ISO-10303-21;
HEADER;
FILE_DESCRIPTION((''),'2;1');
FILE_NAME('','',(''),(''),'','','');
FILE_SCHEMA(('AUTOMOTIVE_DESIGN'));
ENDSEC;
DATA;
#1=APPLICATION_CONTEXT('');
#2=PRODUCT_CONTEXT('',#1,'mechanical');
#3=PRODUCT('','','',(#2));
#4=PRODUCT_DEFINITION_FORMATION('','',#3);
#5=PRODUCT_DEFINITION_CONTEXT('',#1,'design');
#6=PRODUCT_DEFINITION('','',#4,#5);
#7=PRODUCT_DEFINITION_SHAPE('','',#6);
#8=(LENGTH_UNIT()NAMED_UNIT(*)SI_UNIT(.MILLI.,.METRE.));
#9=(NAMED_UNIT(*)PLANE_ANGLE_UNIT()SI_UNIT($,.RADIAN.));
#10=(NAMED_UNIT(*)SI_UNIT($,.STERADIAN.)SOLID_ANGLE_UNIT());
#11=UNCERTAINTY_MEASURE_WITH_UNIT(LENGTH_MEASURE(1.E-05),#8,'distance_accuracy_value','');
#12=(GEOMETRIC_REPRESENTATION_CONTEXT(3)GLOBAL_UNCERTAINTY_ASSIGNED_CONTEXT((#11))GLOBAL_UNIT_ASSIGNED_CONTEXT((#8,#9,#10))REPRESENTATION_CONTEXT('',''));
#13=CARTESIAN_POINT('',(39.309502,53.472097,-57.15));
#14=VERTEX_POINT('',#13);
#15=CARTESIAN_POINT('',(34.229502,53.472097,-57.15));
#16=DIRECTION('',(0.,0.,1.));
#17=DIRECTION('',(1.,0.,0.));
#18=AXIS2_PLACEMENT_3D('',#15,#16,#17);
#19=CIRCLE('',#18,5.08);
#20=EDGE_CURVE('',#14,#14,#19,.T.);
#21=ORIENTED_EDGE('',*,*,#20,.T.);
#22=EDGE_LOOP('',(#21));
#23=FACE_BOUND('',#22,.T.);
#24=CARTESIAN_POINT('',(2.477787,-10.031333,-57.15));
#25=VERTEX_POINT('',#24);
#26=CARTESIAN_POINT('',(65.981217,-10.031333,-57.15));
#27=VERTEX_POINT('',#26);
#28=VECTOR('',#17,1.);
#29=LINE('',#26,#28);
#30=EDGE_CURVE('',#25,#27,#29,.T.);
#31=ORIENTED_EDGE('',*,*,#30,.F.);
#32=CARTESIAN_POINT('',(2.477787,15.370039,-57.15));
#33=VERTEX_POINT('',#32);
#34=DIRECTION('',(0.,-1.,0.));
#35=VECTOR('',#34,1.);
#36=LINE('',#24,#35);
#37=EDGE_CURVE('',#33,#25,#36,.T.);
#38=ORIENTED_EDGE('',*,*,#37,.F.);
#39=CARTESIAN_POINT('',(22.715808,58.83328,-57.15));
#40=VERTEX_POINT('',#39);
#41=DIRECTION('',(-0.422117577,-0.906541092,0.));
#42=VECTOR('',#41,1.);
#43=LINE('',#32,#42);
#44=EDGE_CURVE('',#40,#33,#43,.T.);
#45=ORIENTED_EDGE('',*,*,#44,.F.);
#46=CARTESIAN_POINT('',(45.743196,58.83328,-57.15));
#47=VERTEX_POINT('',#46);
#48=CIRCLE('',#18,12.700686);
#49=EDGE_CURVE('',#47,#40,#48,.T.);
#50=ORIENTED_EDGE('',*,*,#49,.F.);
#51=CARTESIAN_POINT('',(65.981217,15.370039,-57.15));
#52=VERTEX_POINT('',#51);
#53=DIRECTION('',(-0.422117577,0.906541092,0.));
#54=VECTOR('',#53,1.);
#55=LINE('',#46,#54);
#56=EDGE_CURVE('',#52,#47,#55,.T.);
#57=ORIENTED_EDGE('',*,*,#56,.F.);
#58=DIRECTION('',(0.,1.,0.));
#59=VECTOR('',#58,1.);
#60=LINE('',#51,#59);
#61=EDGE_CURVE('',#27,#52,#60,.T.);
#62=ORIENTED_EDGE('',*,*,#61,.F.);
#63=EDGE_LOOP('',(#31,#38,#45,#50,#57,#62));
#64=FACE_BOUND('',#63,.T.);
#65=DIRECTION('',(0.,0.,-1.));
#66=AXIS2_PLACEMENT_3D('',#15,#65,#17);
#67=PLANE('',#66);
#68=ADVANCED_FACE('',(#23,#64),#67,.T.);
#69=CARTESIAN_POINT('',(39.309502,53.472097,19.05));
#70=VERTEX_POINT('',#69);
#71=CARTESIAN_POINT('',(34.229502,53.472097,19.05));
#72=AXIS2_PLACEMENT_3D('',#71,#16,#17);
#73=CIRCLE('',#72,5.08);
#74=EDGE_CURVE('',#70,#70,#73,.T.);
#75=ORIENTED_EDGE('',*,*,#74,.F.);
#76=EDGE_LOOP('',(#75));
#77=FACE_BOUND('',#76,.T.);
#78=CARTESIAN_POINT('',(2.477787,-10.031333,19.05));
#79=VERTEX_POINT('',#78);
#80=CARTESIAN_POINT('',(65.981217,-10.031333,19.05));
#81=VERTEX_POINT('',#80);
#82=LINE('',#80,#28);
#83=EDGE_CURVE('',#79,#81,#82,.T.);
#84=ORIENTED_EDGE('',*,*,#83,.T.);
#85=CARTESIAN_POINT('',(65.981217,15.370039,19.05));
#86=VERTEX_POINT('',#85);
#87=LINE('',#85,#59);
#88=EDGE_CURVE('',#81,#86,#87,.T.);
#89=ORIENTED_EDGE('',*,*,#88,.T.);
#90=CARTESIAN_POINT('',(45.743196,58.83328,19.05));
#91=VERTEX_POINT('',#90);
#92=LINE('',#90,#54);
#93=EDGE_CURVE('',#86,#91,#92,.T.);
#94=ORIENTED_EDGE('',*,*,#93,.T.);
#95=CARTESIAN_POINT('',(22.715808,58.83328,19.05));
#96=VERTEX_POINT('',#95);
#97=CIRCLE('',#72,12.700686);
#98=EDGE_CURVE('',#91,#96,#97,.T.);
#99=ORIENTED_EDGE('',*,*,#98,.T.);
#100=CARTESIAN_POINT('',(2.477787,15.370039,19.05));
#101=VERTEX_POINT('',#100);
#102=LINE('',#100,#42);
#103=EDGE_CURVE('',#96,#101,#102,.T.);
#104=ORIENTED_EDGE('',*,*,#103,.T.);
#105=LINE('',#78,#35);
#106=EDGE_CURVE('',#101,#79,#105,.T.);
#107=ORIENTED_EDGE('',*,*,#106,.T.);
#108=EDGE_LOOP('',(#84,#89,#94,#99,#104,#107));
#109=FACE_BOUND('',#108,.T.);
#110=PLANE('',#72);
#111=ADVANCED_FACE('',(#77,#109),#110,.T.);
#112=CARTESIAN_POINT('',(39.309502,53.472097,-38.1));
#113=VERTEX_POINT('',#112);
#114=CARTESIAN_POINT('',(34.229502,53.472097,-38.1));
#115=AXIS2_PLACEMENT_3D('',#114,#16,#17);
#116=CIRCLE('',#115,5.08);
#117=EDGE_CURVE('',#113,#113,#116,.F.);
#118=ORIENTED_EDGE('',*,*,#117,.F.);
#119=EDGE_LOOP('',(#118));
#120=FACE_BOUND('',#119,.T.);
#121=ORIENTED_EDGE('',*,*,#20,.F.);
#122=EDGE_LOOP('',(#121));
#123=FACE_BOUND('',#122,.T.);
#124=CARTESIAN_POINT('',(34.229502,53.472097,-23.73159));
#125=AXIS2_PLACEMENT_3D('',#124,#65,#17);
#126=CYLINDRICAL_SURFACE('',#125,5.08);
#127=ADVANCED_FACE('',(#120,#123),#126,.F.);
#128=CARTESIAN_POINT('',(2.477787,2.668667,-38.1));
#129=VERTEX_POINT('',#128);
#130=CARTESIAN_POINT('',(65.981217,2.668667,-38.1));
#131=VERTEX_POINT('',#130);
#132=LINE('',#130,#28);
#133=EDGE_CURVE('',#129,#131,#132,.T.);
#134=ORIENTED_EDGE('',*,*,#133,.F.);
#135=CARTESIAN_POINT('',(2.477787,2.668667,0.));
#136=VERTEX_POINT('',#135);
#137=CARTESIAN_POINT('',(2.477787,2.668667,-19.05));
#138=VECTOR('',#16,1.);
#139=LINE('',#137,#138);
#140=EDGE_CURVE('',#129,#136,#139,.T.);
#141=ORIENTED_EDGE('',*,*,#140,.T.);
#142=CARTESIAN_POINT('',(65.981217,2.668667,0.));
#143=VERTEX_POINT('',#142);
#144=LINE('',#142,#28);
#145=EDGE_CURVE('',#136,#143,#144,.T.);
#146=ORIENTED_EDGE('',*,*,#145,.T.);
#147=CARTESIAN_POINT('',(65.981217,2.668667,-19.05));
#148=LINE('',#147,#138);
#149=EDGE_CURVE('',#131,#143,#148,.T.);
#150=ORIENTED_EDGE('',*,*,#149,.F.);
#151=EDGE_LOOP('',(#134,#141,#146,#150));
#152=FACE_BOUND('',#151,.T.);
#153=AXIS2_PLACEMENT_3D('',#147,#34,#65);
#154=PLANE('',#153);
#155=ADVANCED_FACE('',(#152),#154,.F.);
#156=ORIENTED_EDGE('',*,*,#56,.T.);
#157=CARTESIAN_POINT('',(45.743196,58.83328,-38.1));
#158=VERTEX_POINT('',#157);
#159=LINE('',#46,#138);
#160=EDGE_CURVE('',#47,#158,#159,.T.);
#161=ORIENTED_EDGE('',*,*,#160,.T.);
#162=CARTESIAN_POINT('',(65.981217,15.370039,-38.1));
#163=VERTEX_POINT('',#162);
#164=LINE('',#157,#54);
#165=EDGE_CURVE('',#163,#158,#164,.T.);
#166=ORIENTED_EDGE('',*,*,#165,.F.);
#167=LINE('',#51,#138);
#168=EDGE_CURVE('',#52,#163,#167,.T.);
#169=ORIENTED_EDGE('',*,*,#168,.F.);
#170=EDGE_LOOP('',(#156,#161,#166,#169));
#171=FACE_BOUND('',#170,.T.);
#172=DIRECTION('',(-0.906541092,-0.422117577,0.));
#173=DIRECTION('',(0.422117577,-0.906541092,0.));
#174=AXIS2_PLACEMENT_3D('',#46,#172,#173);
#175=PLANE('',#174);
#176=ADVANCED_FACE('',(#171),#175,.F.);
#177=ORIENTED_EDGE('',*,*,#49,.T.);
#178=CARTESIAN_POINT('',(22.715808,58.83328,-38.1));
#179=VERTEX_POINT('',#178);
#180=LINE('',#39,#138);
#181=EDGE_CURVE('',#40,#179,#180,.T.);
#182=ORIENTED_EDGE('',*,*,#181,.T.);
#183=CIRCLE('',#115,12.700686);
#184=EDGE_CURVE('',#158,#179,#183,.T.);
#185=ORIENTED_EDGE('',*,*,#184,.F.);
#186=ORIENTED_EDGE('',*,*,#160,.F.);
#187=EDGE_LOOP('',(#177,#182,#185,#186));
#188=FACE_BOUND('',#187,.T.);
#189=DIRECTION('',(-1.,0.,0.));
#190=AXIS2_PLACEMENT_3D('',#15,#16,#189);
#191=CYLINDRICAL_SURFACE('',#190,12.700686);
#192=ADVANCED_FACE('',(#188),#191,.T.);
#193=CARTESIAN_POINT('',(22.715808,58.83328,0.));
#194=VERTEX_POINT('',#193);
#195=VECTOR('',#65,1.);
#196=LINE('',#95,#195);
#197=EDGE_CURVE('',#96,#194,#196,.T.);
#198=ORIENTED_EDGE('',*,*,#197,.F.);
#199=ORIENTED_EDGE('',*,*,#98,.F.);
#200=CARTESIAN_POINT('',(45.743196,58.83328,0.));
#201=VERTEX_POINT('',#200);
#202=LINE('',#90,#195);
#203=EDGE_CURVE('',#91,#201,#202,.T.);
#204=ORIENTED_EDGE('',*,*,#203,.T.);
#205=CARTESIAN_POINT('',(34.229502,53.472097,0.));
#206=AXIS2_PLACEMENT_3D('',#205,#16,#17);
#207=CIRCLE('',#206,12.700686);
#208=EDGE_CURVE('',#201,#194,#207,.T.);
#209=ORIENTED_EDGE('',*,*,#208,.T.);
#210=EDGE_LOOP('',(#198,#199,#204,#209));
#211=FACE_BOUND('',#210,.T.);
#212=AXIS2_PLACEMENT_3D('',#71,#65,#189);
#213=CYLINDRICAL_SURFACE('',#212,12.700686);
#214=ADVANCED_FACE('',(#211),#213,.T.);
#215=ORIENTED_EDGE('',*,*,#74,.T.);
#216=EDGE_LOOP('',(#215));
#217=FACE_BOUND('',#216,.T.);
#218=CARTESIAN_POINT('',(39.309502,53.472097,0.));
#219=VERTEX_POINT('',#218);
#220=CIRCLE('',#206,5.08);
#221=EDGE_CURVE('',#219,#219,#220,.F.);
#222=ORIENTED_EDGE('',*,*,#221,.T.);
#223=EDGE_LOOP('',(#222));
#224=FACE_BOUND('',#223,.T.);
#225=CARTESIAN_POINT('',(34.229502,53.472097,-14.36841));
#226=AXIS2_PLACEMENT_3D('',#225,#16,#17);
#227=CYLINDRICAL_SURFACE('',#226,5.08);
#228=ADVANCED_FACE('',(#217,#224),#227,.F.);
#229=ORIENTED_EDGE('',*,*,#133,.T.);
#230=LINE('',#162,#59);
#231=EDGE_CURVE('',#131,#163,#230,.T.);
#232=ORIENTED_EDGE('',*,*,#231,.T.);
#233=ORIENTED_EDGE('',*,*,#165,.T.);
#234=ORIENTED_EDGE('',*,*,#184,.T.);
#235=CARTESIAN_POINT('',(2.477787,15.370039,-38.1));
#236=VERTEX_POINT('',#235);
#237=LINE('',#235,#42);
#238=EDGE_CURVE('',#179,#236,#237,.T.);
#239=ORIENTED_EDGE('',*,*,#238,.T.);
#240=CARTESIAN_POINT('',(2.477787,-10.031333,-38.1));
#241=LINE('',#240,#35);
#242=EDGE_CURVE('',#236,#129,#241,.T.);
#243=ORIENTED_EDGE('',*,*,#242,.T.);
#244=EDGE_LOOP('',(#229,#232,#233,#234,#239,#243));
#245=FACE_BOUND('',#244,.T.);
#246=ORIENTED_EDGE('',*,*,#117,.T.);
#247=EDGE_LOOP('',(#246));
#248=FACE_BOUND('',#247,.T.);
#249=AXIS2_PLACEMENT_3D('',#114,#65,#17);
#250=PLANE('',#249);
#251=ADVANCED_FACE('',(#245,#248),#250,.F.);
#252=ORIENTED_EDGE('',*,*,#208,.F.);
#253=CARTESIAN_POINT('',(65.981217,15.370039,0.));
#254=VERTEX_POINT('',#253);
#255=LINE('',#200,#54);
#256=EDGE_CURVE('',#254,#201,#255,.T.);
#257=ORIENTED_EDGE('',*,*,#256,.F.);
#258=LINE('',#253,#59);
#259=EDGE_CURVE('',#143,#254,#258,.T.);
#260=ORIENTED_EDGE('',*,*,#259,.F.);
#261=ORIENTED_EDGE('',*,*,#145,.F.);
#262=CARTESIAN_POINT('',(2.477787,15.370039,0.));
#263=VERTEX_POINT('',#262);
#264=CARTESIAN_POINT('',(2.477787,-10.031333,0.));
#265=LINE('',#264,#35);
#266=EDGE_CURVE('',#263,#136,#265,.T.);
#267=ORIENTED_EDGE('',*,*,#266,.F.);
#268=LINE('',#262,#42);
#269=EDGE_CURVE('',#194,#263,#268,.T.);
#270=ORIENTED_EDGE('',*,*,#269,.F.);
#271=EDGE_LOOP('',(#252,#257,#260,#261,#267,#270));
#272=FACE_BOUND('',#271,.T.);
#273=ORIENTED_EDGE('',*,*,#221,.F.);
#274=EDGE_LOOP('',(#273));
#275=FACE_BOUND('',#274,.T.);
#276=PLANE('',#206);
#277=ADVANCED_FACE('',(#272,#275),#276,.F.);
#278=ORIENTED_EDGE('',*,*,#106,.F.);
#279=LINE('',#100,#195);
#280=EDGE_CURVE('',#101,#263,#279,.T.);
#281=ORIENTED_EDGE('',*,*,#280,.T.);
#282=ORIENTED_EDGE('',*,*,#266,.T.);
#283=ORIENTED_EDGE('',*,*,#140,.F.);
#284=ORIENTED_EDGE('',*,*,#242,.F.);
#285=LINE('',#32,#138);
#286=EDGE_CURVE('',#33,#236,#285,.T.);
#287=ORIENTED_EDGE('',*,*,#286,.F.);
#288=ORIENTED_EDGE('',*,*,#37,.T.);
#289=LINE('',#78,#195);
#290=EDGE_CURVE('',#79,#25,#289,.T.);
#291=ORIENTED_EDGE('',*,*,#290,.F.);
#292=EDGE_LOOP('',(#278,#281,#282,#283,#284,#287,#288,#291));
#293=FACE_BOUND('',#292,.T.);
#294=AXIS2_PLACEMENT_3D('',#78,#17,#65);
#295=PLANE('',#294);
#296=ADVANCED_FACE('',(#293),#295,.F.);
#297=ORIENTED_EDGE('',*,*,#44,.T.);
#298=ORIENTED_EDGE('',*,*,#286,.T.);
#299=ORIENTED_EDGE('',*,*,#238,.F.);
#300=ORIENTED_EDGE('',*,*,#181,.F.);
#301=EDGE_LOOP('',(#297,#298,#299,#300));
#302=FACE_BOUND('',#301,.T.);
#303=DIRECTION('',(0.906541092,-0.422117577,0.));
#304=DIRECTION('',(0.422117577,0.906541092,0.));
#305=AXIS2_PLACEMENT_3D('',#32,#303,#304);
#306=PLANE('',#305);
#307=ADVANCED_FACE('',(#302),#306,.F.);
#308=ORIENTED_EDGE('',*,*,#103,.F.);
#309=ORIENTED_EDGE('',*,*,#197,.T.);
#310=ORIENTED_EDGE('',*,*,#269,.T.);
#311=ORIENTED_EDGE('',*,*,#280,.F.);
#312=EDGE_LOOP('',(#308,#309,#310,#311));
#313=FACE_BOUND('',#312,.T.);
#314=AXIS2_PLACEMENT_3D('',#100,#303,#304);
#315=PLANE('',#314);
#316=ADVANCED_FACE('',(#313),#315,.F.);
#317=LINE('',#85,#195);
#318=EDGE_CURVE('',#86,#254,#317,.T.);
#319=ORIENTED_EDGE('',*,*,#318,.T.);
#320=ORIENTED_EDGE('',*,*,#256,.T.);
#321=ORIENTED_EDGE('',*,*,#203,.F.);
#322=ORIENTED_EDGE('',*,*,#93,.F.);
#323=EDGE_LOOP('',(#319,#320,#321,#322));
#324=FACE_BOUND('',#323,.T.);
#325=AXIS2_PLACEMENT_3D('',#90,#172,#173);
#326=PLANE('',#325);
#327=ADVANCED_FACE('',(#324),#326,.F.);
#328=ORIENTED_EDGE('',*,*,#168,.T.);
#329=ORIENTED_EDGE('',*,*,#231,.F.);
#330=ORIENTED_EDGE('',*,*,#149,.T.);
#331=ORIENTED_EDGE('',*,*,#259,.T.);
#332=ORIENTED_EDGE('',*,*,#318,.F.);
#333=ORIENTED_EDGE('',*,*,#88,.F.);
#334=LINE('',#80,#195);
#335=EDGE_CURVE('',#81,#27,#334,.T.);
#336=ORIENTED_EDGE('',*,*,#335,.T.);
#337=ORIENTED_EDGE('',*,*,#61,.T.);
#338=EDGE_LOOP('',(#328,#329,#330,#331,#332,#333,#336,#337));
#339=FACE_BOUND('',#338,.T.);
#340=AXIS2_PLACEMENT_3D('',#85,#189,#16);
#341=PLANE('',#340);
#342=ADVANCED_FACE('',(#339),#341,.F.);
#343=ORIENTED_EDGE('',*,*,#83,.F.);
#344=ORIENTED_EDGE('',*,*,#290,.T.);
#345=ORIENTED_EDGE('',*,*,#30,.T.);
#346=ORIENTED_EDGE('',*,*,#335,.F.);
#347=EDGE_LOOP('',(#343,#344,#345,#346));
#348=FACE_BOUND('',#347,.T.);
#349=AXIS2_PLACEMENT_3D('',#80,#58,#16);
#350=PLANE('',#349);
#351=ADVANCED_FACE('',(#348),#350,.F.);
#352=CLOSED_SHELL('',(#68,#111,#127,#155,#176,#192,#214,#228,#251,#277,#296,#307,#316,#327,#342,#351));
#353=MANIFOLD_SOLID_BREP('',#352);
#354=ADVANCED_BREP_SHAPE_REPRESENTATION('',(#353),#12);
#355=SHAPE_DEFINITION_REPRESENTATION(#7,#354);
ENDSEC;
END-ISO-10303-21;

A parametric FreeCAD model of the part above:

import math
import FreeCAD as App
import Part
import Sketcher
from FreeCAD import Vector
Q = App.Units.Quantity

doc = App.newDocument("Part")
body = doc.addObject("PartDesign::Body", "Body")

# Sketch on XY plane
sketch1 = doc.addObject("Sketcher::SketchObject", "Sketch")
body.addObject(sketch1)
sketch1.AttachmentSupport = (doc.XY_Plane, [""])
sketch1.MapMode = "FlatFace"
sketch1.addGeometry([
    Part.LineSegment(Vector(2, 15, 0), Vector(2, -10, 0)),  # 0
    Part.LineSegment(Vector(2, -10, 0), Vector(66, -10, 0)),  # 1
    Part.LineSegment(Vector(66, -10, 0), Vector(66, 15, 0)),  # 2
    Part.LineSegment(Vector(66, 15, 0), Vector(46, 59, 0)),  # 3
    Part.ArcOfCircle(Part.Circle(Vector(34, 53, 0), Vector(0, 0, 1), 13), math.radians(25), math.radians(155)),  # 4
    Part.LineSegment(Vector(23, 59, 0), Vector(2, 15, 0)),  # 5
], False)
sketch1.addConstraint([
    Sketcher.Constraint("Coincident", 0, 2, 1, 1),
    Sketcher.Constraint("Coincident", 1, 2, 2, 1),
    Sketcher.Constraint("Coincident", 2, 2, 3, 1),
    Sketcher.Constraint("Tangent", 3, 2, 4, 1),
    Sketcher.Constraint("Tangent", 4, 2, 5, 1),
    Sketcher.Constraint("Coincident", 5, 2, 0, 1),
    Sketcher.Constraint("Vertical", 0),
    Sketcher.Constraint("Horizontal", 1),
    Sketcher.Constraint("Vertical", 2),
    Sketcher.Constraint("Horizontal", 3, 2, 4, 2),
    Sketcher.Constraint("Horizontal", 2, 2, 5, 2),
    Sketcher.Constraint("Radius", 4, 12.700686),
    Sketcher.Constraint("DistanceX", 1, 1, 1, 2, 63.50343),
    Sketcher.Constraint("DistanceY", 0, 2, 0, 1, 25.401372),
    Sketcher.Constraint("Distance", 3, 47.944038),
    Sketcher.Constraint("DistanceY", -1, 1, 2, 2, 15.370039),
    Sketcher.Constraint("DistanceX", -1, 1, 4, 2, 22.715808),
])
pad1 = doc.addObject("PartDesign::Pad", "Pad")
body.addObject(pad1)
pad1.Profile = sketch1
pad1.Length = Q("0.75 in")

# Sketch on XY plane
sketch2 = doc.addObject("Sketcher::SketchObject", "Sketch001")
body.addObject(sketch2)
sketch2.AttachmentSupport = (doc.XY_Plane, [""])
sketch2.MapMode = "FlatFace"
sketch2.AttachmentOffset = App.Placement(Vector(0, 0, 0.75 * 25.4), App.Rotation())
sketch2.addGeometry(Part.Circle(Vector(34, 53, 0), Vector(0, 0, 1), 5), False)
sketch2.addConstraint([
    Sketcher.Constraint("Diameter", 0, Q("0.4 in")),
    Sketcher.Constraint("DistanceX", -1, 1, 0, 3, 34.229502),
    Sketcher.Constraint("DistanceY", -1, 1, 0, 3, 53.472097),
])
pocket1 = doc.addObject("PartDesign::Pocket", "Pocket")
body.addObject(pocket1)
pocket1.Profile = sketch2
pocket1.Length = Q("0.75 in")

# Sketch on XY plane
sketch3 = doc.addObject("Sketcher::SketchObject", "Sketch002")
body.addObject(sketch3)
sketch3.AttachmentSupport = (doc.XY_Plane, [""])
sketch3.MapMode = "FlatFace"
sketch3.addGeometry([
    Part.LineSegment(Vector(66, 3, 0), Vector(66, -10, 0)),
    Part.LineSegment(Vector(66, -10, 0), Vector(2, -10, 0)),
    Part.LineSegment(Vector(2, -10, 0), Vector(2, 3, 0)),
    Part.LineSegment(Vector(2, 3, 0), Vector(66, 3, 0)),
], False)
sketch3.addConstraint([
    Sketcher.Constraint("Coincident", 0, 2, 1, 1),
    Sketcher.Constraint("Coincident", 1, 2, 2, 1),
    Sketcher.Constraint("Coincident", 2, 2, 3, 1),
    Sketcher.Constraint("Coincident", 3, 2, 0, 1),
    Sketcher.Constraint("Vertical", 0),
    Sketcher.Constraint("Horizontal", 1),
    Sketcher.Constraint("Vertical", 2),
    Sketcher.Constraint("Horizontal", 3),
    Sketcher.Constraint("DistanceY", 0, 2, 0, 1, Q("0.5 in")),
    Sketcher.Constraint("DistanceX", 1, 2, 1, 1, 63.50343),
    Sketcher.Constraint("DistanceX", -1, 1, 0, 2, 65.981217),
    Sketcher.Constraint("DistanceY", 0, 2, -1, 1, 10.031333),
])
pad2 = doc.addObject("PartDesign::Pad", "Pad001")
body.addObject(pad2)
pad2.Profile = sketch3
pad2.Length = Q("0.75 in")
pad2.Reversed = True
doc.recompute()

datumplane = doc.addObject("PartDesign::Plane", "DatumPlane")
body.addObject(datumplane)
datumplane.AttachmentSupport = (doc.XY_Plane, [""])
datumplane.MapMode = "FlatFace"
datumplane.AttachmentOffset = App.Placement(Vector(0, 0, -0.75 * 25.4), App.Rotation())
mirrored = doc.addObject("PartDesign::Mirrored", "Mirrored")
body.addObject(mirrored)
mirrored.Originals = [pad1, pocket1, pad2]
mirrored.MirrorPlane = (datumplane, [""])
body.Tip = mirrored

doc.recompute()
